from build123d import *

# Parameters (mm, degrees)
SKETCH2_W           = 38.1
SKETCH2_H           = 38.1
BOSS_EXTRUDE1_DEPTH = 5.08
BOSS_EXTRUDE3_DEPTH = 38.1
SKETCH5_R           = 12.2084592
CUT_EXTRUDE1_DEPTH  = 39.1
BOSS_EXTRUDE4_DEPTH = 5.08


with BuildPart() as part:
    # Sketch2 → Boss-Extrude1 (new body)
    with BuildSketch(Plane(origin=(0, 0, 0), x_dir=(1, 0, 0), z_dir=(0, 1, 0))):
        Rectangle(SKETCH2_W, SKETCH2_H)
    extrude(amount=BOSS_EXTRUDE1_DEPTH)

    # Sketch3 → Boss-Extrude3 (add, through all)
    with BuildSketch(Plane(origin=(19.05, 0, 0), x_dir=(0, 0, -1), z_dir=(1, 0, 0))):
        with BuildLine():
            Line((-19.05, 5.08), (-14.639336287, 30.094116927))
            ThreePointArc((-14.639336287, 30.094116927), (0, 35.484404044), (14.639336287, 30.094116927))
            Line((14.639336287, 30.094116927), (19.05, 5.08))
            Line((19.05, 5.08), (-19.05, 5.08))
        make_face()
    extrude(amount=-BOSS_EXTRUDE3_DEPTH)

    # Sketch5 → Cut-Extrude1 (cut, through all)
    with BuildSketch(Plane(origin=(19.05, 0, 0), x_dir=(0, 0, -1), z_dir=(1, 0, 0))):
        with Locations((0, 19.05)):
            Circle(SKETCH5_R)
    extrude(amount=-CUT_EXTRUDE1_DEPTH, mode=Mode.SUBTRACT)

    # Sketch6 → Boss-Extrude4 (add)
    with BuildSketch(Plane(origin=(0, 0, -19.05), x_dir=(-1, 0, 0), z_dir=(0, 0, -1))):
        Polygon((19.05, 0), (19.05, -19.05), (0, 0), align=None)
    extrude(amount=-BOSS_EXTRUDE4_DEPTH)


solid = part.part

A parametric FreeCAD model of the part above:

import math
import FreeCAD as App
import Part
import Sketcher

V = App.Vector
Q = App.Units.Quantity

doc = App.newDocument("Part")
params = doc.addObject("Spreadsheet::Sheet", "Params")
for row, (alias, value) in enumerate([
    ("sketch1_width", "1.5 in"),
    ("pad1_length", "0.2 in"),
    ("sketch2_length", "1 in"),
    ("sketch2_height", "1.5 in"),
    ("pad2_length", "1.5 in"),
    ("sketch4_width", "0.75 in"),
    ("pad3_length", "0.2 in"),
], start=1):
    params.set(f"A{row}", alias)
    params.set(f"B{row}", "=" + value)
    params.setAlias(f"B{row}", alias)

body = doc.addObject("PartDesign::Body", "Body")

# Sketch on XZ plane
sketch1 = body.newObject("Sketcher::SketchObject", "Sketch")
sketch1.AttachmentSupport = (doc.getObject("XZ_Plane"), [""])
sketch1.MapMode = "FlatFace"
sketch1.addGeometry(Part.LineSegment(V(-19, -19, 0), V(-19, 19, 0)), False)
sketch1.addGeometry(Part.LineSegment(V(-19, 19, 0), V(19, 19, 0)), False)
sketch1.addGeometry(Part.LineSegment(V(19, 19, 0), V(19, -19, 0)), False)
sketch1.addGeometry(Part.LineSegment(V(19, -19, 0), V(-19, -19, 0)), False)
sketch1.addConstraint(Sketcher.Constraint("Coincident", 0, 2, 1, 1))
sketch1.addConstraint(Sketcher.Constraint("Coincident", 1, 2, 2, 1))
sketch1.addConstraint(Sketcher.Constraint("Coincident", 2, 2, 3, 1))
sketch1.addConstraint(Sketcher.Constraint("Coincident", 3, 2, 0, 1))
sketch1.addConstraint(Sketcher.Constraint("Vertical", 0))
sketch1.addConstraint(Sketcher.Constraint("Horizontal", 1))
sketch1.addConstraint(Sketcher.Constraint("Vertical", 2))
sketch1.addConstraint(Sketcher.Constraint("Horizontal", 3))
sketch1.addConstraint(Sketcher.Constraint("Symmetric", 0, 2, 2, 2, -1, 1))
sketch1.addConstraint(Sketcher.Constraint("Equal", 3, 0))
sketch1.addConstraint(Sketcher.Constraint("DistanceX", 1, 1, 1, 2, Q("1.5 in")))
sketch1.setExpression("Constraints[10]", "Params.sketch1_width")
pad1 = body.newObject("PartDesign::Pad", "Pad")
pad1.Profile = sketch1
pad1.setExpression("Length", "Params.pad1_length")
pad1.Reversed = True

# Sketch on YZ plane
sketch2 = body.newObject("Sketcher::SketchObject", "Sketch001")
sketch2.AttachmentSupport = (doc.getObject("YZ_Plane"), [""])
sketch2.MapMode = "FlatFace"
sketch2.AttachmentOffset = App.Placement(V(0, 0, 0.75 * 25.4), App.Rotation())
sketch2.addGeometry(Part.LineSegment(V(30, 15, 0), V(5, 19, 0)), False)
sketch2.addGeometry(Part.LineSegment(V(5, 19, 0), V(5, -19, 0)), False)
sketch2.addGeometry(Part.LineSegment(V(5, -19, 0), V(30, -15, 0)), False)
sketch2.addGeometry(Part.ArcOfCircle(Part.Circle(V(13, 0, 0), V(0, 0, 1), 23), math.radians(-40), math.radians(40)), False)
sketch2.addConstraint(Sketcher.Constraint("Coincident", 0, 2, 1, 1))
sketch2.addConstraint(Sketcher.Constraint("Coincident", 1, 2, 2, 1))
sketch2.addConstraint(Sketcher.Constraint("Coincident", 2, 2, 3, 1))
sketch2.addConstraint(Sketcher.Constraint("Coincident", 3, 2, 0, 1))
sketch2.addConstraint(Sketcher.Constraint("Vertical", 1))
sketch2.addConstraint(Sketcher.Constraint("Symmetric", 2, 2, 3, 2, -1))
sketch2.addConstraint(Sketcher.Constraint("Equal", 0, 2))
sketch2.addConstraint(Sketcher.Constraint("Distance", 0, Q("1 in")))
sketch2.addConstraint(Sketcher.Constraint("DistanceY", 1, 2, 1, 1, Q("1.5 in")))
sketch2.addConstraint(Sketcher.Constraint("Angle", 0, Q("170 deg")))
sketch2.addConstraint(Sketcher.Constraint("DistanceX", -1, 1, 0, 2, Q("0.2 in")))
sketch2.addConstraint(Sketcher.Constraint("Radius", 3, Q("22.574434 mm")))
sketch2.setExpression("Constraints[7]", "Params.sketch2_length")
sketch2.setExpression("Constraints[8]", "Params.sketch2_height")
pad2 = body.newObject("PartDesign::Pad", "Pad001")
pad2.Profile = sketch2
pad2.setExpression("Length", "Params.pad2_length")
pad2.Reversed = True

# Sketch on YZ plane
sketch3 = body.newObject("Sketcher::SketchObject", "Sketch002")
sketch3.AttachmentSupport = (doc.getObject("YZ_Plane"), [""])
sketch3.MapMode = "FlatFace"
sketch3.AttachmentOffset = App.Placement(V(0, 0, 0.75 * 25.4), App.Rotation())
sketch3.addGeometry(Part.Circle(V(19, 0, 0), V(0, 0, 1), 12), False)
sketch3.addConstraint(Sketcher.Constraint("PointOnObject", 0, 3, -1))
sketch3.addConstraint(Sketcher.Constraint("DistanceX", -1, 1, 0, 3, Q("0.75 in")))
sketch3.addConstraint(Sketcher.Constraint("Diameter", 0, Q("24.416918 mm")))
pocket1 = body.newObject("PartDesign::Pocket", "Pocket")
pocket1.Profile = sketch3
pocket1.Type = "ThroughAll"

# Sketch on XY plane
sketch4 = body.newObject("Sketcher::SketchObject", "Sketch003")
sketch4.AttachmentSupport = (doc.getObject("XY_Plane"), [""])
sketch4.MapMode = "FlatFace"
sketch4.AttachmentOffset = App.Placement(V(0, 0, -0.75 * 25.4), App.Rotation())
sketch4.addGeometry(Part.LineSegment(V(-19, -19, 0), V(-19, 0, 0)), False)
sketch4.addGeometry(Part.LineSegment(V(-19, 0, 0), V(0, 0, 0)), False)
sketch4.addGeometry(Part.LineSegment(V(0, 0, 0), V(-19, -19, 0)), False)
sketch4.addConstraint(Sketcher.Constraint("Coincident", 0, 2, 1, 1))
sketch4.addConstraint(Sketcher.Constraint("Coincident", 1, 2, 2, 1))
sketch4.addConstraint(Sketcher.Constraint("Coincident", 2, 2, 0, 1))
sketch4.addConstraint(Sketcher.Constraint("Vertical", 0))
sketch4.addConstraint(Sketcher.Constraint("Horizontal", 1))
sketch4.addConstraint(Sketcher.Constraint("Coincident", 1, 2, -1, 1))
sketch4.addConstraint(Sketcher.Constraint("Equal", 1, 0))
sketch4.addConstraint(Sketcher.Constraint("DistanceX", 1, 1, 1, 2, Q("0.75 in")))
sketch4.setExpression("Constraints[7]", "Params.sketch4_width")
pad3 = body.newObject("PartDesign::Pad", "Pad002")
pad3.Profile = sketch4
pad3.setExpression("Length", "Params.pad3_length")

doc.recompute()
